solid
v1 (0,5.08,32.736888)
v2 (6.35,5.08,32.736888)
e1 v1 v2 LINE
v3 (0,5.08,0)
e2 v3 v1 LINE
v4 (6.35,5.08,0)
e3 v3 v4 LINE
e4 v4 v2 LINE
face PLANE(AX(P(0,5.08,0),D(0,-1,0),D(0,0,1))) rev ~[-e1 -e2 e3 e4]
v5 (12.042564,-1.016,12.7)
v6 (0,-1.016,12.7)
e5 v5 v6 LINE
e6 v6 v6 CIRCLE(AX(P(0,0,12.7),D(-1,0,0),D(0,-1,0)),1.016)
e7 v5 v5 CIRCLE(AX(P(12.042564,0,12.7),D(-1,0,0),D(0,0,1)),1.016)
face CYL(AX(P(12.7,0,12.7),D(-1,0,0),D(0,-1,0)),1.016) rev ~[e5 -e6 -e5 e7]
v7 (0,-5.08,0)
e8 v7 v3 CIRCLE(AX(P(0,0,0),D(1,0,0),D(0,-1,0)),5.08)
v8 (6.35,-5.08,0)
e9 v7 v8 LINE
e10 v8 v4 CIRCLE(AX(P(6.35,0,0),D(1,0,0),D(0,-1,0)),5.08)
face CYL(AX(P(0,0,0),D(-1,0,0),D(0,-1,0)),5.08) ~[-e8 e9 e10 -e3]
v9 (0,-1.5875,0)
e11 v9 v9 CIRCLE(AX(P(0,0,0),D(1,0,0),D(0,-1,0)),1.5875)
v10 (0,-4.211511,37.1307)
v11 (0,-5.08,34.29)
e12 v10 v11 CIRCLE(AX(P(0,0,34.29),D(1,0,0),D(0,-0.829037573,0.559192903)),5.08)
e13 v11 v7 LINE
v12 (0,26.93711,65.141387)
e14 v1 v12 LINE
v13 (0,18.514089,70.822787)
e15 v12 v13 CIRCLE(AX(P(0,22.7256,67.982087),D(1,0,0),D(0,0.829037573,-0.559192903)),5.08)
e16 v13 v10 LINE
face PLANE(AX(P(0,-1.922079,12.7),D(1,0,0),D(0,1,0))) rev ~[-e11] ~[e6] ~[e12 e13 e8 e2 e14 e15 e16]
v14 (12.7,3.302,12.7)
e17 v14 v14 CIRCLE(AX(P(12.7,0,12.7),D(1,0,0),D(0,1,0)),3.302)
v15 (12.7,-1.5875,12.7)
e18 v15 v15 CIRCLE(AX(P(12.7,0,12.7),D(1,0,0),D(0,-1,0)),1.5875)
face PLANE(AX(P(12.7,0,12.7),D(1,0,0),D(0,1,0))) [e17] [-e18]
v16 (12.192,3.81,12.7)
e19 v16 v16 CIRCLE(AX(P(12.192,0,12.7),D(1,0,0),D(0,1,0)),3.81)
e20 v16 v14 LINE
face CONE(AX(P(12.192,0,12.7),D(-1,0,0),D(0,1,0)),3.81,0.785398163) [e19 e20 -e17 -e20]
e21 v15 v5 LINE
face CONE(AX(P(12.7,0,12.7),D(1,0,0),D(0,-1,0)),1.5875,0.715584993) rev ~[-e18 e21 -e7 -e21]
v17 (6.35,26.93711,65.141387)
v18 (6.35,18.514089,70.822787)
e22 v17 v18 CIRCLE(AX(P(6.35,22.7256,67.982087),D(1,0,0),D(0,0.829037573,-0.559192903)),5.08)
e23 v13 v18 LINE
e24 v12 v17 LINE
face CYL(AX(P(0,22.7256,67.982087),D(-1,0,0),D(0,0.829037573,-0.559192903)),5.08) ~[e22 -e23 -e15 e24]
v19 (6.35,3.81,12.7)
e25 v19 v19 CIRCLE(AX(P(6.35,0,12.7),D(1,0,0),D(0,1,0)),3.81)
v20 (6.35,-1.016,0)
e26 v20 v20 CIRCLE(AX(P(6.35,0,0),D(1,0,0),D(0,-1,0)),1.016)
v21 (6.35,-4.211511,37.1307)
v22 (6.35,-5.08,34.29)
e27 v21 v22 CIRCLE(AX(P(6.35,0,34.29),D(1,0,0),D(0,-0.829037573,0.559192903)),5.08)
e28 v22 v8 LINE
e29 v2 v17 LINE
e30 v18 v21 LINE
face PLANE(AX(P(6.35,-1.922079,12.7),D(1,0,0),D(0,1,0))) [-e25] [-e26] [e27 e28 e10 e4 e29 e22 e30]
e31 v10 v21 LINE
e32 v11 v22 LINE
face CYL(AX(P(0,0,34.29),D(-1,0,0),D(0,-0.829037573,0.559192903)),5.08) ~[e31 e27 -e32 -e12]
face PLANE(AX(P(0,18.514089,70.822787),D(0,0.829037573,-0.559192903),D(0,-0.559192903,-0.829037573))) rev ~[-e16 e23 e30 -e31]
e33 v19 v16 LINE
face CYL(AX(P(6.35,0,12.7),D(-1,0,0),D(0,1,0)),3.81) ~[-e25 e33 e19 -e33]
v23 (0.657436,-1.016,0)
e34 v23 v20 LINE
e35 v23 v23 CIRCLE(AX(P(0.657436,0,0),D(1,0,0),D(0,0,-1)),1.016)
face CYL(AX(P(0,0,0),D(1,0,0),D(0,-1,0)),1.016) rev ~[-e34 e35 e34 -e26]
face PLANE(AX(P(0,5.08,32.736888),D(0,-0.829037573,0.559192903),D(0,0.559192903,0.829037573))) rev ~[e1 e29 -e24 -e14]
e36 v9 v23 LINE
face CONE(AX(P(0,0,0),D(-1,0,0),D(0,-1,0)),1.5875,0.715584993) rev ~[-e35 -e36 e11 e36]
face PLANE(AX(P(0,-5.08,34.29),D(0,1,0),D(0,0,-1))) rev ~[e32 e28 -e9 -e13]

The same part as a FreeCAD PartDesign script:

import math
import FreeCAD as App
import Part
import Sketcher
from FreeCAD import Vector
Q = App.Units.Quantity


def edges_at(feature, points):
    """Names of the edges that pass closest to the given points."""
    edges = feature.Shape.Edges
    near = lambda p: min(range(len(edges)), key=lambda i: edges[i].distToShape(Part.Vertex(*p))[0])
    return sorted({f"Edge{near(p) + 1}" for p in points})

doc = App.newDocument("Part")
params = doc.addObject("Spreadsheet::Sheet", "Params")
for row, (alias, value) in enumerate([
    ("sketch1_radius", "0.2 in"),
    ("sketch1_length", "1.6 in"),
    ("sketch1_height", "1.35 in"),
    ("pad1_length", "0.25 in"),
    ("sketch2_diameter", "0.3 in"),
    ("pad2_length", "0.25 in"),
    ("sketch3_diameter", "0.08 in"),
    ("hole_diameter", "0.08 in"),
    ("hole_csink_diameter", "0.125 in"),
    ("sketch4_diameter", "0.08 in"),
    ("hole2_diameter", "0.08 in"),
    ("hole2_csink_diameter", "0.125 in"),
    ("chamfer_size", "0.02 in"),
], start=1):
    params.set(f"A{row}", alias)
    params.set(f"B{row}", "=" + value)
    params.setAlias(f"B{row}", alias)

body = doc.addObject("PartDesign::Body", "Body")

# Sketch on YZ plane
sketch1 = body.newObject("Sketcher::SketchObject", "Sketch")
sketch1.AttachmentSupport = (doc.getObject("YZ_Plane"), [""])
sketch1.MapMode = "FlatFace"
sketch1.addGeometry([
    Part.ArcOfCircle(Part.Circle(Vector(0, 0, 0), Vector(0, 0, 1), 5.1), math.radians(180), math.radians(360)),  # 0
    Part.LineSegment(Vector(5.1, 0, 0), Vector(5.1, 32.7, 0)),  # 1
    Part.LineSegment(Vector(5.1, 32.7, 0), Vector(26.9, 65.1, 0)),  # 2
    Part.ArcOfCircle(Part.Circle(Vector(22.7, 68, 0), Vector(0, 0, 1), 5.1), math.radians(-34), math.radians(146)),  # 3
    Part.LineSegment(Vector(18.5, 70.8, 0), Vector(-4.2, 37.1, 0)),  # 4
    Part.ArcOfCircle(Part.Circle(Vector(0, 34.3, 0), Vector(0, 0, 1), 5.1), math.radians(146), math.radians(180)),  # 5
    Part.LineSegment(Vector(-5.1, 34.3, 0), Vector(-5.1, 0, 0)),  # 6
], False)
sketch1.addConstraint([
    Sketcher.Constraint("Tangent", 0, 2, 1, 1),
    Sketcher.Constraint("Coincident", 1, 2, 2, 1),
    Sketcher.Constraint("Tangent", 2, 2, 3, 1),
    Sketcher.Constraint("Tangent", 3, 2, 4, 1),
    Sketcher.Constraint("Tangent", 4, 2, 5, 1),
    Sketcher.Constraint("Tangent", 5, 2, 6, 1),
    Sketcher.Constraint("Tangent", 6, 2, 0, 1),
    Sketcher.Constraint("Vertical", 1),
    Sketcher.Constraint("Vertical", 6),
    Sketcher.Constraint("Coincident", 0, 3, -1, 1),
    Sketcher.Constraint("Equal", 0, 3),
    Sketcher.Constraint("Equal", 3, 5),
    Sketcher.Constraint("Parallel", 2, 4),
    Sketcher.Constraint("Radius", 0, Q("0.2 in")),
    Sketcher.Constraint("Angle", 2, Q("56 deg")),
    Sketcher.Constraint("Distance", 4, Q("1.6 in")),
    Sketcher.Constraint("DistanceY", 6, 2, 6, 1, Q("1.35 in")),
])
sketch1.setExpression("Constraints[13]", "Params.sketch1_radius")
sketch1.setExpression("Constraints[15]", "Params.sketch1_length")
sketch1.setExpression("Constraints[16]", "Params.sketch1_height")
pad1 = body.newObject("PartDesign::Pad", "Pad")
pad1.Profile = sketch1
pad1.setExpression("Length", "Params.pad1_length")

# Sketch on YZ plane
sketch2 = body.newObject("Sketcher::SketchObject", "Sketch001")
sketch2.AttachmentSupport = (doc.getObject("YZ_Plane"), [""])
sketch2.MapMode = "FlatFace"
sketch2.AttachmentOffset = App.Placement(Vector(0, 0, 0.25 * 25.4), App.Rotation())
sketch2.addGeometry(Part.Circle(Vector(0, 12.7, 0), Vector(0, 0, 1), 3.8), False)
sketch2.addConstraint([
    Sketcher.Constraint("PointOnObject", 0, 3, -2),
    Sketcher.Constraint("Diameter", 0, Q("0.3 in")),
    Sketcher.Constraint("DistanceY", -1, 1, 0, 3, Q("0.5 in")),
])
sketch2.setExpression("Constraints[1]", "Params.sketch2_diameter")
pad2 = body.newObject("PartDesign::Pad", "Pad001")
pad2.Profile = sketch2
pad2.setExpression("Length", "Params.pad2_length")

# Sketch on YZ plane
sketch3 = body.newObject("Sketcher::SketchObject", "Sketch002")
sketch3.AttachmentSupport = (doc.getObject("YZ_Plane"), [""])
sketch3.MapMode = "FlatFace"
sketch3.AttachmentOffset = App.Placement(Vector(0, 0, 0.5 * 25.4), App.Rotation())
sketch3.addGeometry(Part.Circle(Vector(0, 12.7, 0), Vector(0, 0, 1), 1), False)
sketch3.addConstraint([
    Sketcher.Constraint("PointOnObject", 0, 3, -2),
    Sketcher.Constraint("Diameter", 0, Q("0.08 in")),
    Sketcher.Constraint("DistanceY", -1, 1, 0, 3, Q("0.5 in")),
])
sketch3.setExpression("Constraints[1]", "Params.sketch3_diameter")
doc.recompute()
hole = body.newObject("PartDesign::Hole", "Hole")
hole.Profile = sketch3
hole.ThreadType = "None"
hole.setExpression("Diameter", "Params.hole_diameter")
hole.DepthType = "ThroughAll"
hole.HoleCutType = "Countersink"
hole.setExpression("HoleCutDiameter", "Params.hole_csink_diameter")
hole.HoleCutCountersinkAngle = 82

# Sketch on YZ plane
sketch4 = body.newObject("Sketcher::SketchObject", "Sketch003")
sketch4.AttachmentSupport = (doc.getObject("YZ_Plane"), [""])
sketch4.MapMode = "FlatFace"
sketch4.addGeometry(Part.Circle(Vector(0, 0, 0), Vector(0, 0, 1), 1), False)
sketch4.addConstraint([
    Sketcher.Constraint("Coincident", 0, 3, -1, 1),
    Sketcher.Constraint("Diameter", 0, Q("0.08 in")),
])
sketch4.setExpression("Constraints[1]", "Params.sketch4_diameter")
doc.recompute()
hole2 = body.newObject("PartDesign::Hole", "Hole001")
hole2.Profile = sketch4
hole2.ThreadType = "None"
hole2.setExpression("Diameter", "Params.hole2_diameter")
hole2.DepthType = "ThroughAll"
hole2.HoleCutType = "Countersink"
hole2.setExpression("HoleCutDiameter", "Params.hole2_csink_diameter")
hole2.HoleCutCountersinkAngle = 82
hole2.Reversed = True
doc.recompute()

chamfer = body.newObject("PartDesign::Chamfer", "Chamfer")
chamfer.Base = (hole2, edges_at(hole2, [(12.7, -3.81, 12.7)]))
chamfer.setExpression("Size", "Params.chamfer_size")

doc.recompute()
